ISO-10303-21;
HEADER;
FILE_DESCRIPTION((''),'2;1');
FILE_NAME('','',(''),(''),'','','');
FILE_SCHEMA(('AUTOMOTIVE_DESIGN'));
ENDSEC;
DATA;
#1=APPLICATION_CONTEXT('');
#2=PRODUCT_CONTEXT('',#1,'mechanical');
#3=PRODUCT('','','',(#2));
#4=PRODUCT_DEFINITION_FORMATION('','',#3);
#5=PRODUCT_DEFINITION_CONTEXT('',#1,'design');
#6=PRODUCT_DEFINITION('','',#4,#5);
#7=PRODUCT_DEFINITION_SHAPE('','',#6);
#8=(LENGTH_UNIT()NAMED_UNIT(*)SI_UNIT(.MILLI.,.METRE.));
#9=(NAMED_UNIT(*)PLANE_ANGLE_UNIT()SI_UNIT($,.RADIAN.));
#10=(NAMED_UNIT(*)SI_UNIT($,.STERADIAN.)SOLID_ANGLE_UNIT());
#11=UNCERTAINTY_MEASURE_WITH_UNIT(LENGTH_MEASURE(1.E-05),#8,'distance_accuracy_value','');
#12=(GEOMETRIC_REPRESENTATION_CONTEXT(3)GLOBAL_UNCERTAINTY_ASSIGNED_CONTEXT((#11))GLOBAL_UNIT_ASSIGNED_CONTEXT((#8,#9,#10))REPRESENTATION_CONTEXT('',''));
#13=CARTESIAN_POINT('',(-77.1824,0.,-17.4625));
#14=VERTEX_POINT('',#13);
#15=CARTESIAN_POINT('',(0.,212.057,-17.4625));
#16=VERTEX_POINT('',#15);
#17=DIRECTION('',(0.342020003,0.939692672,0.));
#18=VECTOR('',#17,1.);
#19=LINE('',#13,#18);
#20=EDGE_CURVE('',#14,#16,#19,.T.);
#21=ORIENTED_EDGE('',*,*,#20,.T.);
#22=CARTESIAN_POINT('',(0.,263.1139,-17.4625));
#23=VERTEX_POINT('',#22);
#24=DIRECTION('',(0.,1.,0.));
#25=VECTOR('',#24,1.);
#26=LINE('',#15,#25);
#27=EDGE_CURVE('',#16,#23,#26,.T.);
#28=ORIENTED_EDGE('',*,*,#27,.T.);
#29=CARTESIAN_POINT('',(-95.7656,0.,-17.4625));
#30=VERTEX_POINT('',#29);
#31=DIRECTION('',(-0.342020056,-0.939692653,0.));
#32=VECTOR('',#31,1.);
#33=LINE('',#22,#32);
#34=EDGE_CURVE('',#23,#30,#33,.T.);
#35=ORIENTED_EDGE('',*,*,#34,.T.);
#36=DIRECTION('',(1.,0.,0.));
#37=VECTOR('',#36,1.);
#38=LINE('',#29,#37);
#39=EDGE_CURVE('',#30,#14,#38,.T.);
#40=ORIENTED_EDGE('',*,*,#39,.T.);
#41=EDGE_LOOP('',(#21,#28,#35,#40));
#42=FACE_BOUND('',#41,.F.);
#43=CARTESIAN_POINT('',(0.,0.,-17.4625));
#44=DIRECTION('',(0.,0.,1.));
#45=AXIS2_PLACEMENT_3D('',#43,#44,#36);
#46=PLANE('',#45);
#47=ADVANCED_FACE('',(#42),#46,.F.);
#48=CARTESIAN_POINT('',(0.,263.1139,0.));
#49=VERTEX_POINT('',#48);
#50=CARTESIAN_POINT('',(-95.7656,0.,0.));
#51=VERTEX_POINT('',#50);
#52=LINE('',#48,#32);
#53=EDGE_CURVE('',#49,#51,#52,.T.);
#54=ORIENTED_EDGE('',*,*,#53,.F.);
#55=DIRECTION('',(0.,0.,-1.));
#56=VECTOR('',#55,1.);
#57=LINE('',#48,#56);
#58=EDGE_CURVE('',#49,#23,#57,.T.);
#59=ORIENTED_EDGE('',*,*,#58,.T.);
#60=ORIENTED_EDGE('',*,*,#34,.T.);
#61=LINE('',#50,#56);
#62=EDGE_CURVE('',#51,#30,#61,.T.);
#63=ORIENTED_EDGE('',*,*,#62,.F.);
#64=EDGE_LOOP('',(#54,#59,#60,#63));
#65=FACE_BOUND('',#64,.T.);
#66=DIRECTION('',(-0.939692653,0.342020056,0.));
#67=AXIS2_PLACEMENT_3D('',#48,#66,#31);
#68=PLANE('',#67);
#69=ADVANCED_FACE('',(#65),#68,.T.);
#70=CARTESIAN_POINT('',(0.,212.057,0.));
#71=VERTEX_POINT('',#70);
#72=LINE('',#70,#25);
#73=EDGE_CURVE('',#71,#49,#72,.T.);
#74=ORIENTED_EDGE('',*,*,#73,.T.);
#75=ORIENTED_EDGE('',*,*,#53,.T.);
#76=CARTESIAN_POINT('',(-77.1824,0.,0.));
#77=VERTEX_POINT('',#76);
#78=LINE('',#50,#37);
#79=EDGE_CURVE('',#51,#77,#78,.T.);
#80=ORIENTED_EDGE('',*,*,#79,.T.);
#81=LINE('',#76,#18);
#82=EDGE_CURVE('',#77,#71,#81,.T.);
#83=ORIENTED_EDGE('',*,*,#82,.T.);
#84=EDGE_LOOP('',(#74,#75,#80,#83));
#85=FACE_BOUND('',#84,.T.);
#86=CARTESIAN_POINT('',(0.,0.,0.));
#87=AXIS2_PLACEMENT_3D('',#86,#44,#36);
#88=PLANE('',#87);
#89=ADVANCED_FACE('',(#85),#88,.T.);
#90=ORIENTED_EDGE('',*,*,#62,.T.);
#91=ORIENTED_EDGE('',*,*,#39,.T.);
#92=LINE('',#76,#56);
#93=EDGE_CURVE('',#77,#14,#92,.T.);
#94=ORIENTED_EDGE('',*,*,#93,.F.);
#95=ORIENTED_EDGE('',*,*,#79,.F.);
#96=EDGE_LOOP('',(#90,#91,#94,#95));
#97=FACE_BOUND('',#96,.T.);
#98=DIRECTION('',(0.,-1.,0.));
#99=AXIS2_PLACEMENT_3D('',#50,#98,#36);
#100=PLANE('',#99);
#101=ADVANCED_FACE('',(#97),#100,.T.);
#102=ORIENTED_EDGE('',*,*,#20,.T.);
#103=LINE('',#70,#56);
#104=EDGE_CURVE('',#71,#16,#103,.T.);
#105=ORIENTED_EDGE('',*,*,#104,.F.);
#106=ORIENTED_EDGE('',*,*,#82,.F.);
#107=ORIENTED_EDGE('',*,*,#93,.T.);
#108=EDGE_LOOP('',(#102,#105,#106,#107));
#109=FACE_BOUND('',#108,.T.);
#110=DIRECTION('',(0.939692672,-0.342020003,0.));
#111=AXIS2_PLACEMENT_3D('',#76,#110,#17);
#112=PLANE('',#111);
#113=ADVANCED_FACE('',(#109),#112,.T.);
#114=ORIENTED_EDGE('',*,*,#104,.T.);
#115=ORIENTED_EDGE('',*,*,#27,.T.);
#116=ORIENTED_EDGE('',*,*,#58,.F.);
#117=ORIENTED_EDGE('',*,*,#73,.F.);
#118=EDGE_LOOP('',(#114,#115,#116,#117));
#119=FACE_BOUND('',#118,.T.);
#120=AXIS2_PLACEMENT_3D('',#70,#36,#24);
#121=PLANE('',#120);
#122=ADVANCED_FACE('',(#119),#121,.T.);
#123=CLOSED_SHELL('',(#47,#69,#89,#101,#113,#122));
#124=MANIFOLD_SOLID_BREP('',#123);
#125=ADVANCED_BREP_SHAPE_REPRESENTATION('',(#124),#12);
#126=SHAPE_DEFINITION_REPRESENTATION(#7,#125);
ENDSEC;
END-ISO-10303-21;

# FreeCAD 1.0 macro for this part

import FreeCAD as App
import Part
import Sketcher
from FreeCAD import Vector
Q = App.Units.Quantity


def add_polygon(sketch, points):
    """Adds a closed chain of lines whose ends are joined by coincident constraints."""
    first, n = sketch.GeometryCount, len(points)
    for a, b in zip(points, points[1:] + points[:1]):
        sketch.addGeometry(Part.LineSegment(App.Vector(*a, 0), App.Vector(*b, 0)), False)
    for i in range(n):
        sketch.addConstraint(Sketcher.Constraint("Coincident", first + i, 2, first + (i + 1) % n, 1))

doc = App.newDocument("Part")
body = doc.addObject("PartDesign::Body", "Body")

# Sketch on XY plane
sketch1 = body.newObject("Sketcher::SketchObject", "Sketch")
sketch1.AttachmentSupport = (doc.getObject("XY_Plane"), [""])
sketch1.MapMode = "FlatFace"
add_polygon(sketch1, [(0, 263), (-96, 0), (-77, 0), (0, 212)])  # lines 0-3
sketch1.addConstraint([
    Sketcher.Constraint("Horizontal", 1),
    Sketcher.Constraint("Vertical", 3),
    Sketcher.Constraint("PointOnObject", 0, 2, -1),
    Sketcher.Constraint("PointOnObject", 2, 2, -2),
    Sketcher.Constraint("Parallel", 0, 2),
    Sketcher.Constraint("Angle", 2, Q("70 deg")),
    Sketcher.Constraint("Distance", 0, Q("280 mm")),
    Sketcher.Constraint("DistanceY", 3, 1, 3, 2, Q("51.057 mm")),
])
pad1 = body.newObject("PartDesign::Pad", "Pad")
pad1.Profile = sketch1
pad1.Length = 17.4625
pad1.Reversed = True

doc.recompute()
